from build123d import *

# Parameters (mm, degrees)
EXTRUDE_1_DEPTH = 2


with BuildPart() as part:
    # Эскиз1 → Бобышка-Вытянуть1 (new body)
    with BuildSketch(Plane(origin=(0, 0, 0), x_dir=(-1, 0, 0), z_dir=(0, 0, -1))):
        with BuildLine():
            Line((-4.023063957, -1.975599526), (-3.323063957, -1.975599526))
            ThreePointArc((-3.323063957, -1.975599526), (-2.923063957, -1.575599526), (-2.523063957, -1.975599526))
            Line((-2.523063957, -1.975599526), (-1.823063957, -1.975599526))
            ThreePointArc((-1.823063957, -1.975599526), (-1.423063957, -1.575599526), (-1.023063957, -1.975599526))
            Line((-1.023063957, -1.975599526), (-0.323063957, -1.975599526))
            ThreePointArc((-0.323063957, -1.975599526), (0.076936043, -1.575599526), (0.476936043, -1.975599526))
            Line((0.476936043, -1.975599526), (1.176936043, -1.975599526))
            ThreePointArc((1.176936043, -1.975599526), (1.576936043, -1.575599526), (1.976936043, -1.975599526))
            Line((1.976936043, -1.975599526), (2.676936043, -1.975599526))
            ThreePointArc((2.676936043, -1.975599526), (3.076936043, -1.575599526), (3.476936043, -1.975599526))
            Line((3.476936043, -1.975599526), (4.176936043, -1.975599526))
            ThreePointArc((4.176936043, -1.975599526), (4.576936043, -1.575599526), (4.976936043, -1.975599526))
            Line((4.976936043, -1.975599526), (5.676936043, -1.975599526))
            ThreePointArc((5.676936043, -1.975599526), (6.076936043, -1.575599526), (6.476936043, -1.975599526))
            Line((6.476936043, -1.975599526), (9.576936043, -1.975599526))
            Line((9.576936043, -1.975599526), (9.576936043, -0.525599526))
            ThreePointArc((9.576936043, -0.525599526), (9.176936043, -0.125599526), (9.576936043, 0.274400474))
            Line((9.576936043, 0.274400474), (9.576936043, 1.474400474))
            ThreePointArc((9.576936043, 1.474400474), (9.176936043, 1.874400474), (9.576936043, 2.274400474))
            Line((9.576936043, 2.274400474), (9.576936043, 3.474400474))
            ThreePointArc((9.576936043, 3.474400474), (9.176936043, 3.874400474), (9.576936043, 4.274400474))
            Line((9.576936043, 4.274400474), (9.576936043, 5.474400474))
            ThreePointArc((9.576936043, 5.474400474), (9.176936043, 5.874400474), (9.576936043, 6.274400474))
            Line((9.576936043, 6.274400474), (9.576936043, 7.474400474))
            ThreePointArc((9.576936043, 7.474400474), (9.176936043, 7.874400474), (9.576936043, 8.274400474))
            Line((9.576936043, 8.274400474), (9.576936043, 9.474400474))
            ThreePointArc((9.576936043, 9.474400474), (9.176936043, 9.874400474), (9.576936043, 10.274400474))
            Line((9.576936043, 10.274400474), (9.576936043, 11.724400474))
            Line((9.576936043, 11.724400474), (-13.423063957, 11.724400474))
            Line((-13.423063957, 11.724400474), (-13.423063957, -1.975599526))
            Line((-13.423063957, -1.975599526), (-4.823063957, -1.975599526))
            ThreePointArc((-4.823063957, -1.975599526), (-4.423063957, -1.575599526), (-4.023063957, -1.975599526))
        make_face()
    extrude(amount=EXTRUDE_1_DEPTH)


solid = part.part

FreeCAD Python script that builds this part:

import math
import FreeCAD as App
import Part
import Sketcher
from FreeCAD import Vector
Q = App.Units.Quantity

doc = App.newDocument("Part")
body = doc.addObject("PartDesign::Body", "Body")

sketch1 = doc.addObject("Sketcher::SketchObject", "Sketch")
body.addObject(sketch1)
sketch1.AttachmentSupport = (doc.XY_Plane, [""])
sketch1.MapMode = "FlatFace"
sketch1.addGeometry(Part.LineSegment(Vector(4.02, -1.98, 0), Vector(3.32, -1.98, 0)), False)
sketch1.addGeometry(Part.ArcOfCircle(Part.Circle(Vector(2.92, -1.98, 0), Vector(0, 0, 1), 0.4), math.radians(0), math.radians(180)), False)
sketch1.addGeometry(Part.LineSegment(Vector(2.52, -1.98, 0), Vector(1.82, -1.98, 0)), False)
sketch1.addGeometry(Part.ArcOfCircle(Part.Circle(Vector(1.42, -1.98, 0), Vector(0, 0, 1), 0.4), math.radians(0), math.radians(180)), False)
sketch1.addGeometry(Part.LineSegment(Vector(1.02, -1.98, 0), Vector(0.32, -1.98, 0)), False)
sketch1.addGeometry(Part.ArcOfCircle(Part.Circle(Vector(-0.08, -1.98, 0), Vector(0, 0, 1), 0.4), math.radians(0), math.radians(180)), False)
sketch1.addGeometry(Part.LineSegment(Vector(-0.48, -1.98, 0), Vector(-1.18, -1.98, 0)), False)
sketch1.addGeometry(Part.ArcOfCircle(Part.Circle(Vector(-1.58, -1.98, 0), Vector(0, 0, 1), 0.4), math.radians(0), math.radians(180)), False)
sketch1.addGeometry(Part.LineSegment(Vector(-1.98, -1.98, 0), Vector(-2.68, -1.98, 0)), False)
sketch1.addGeometry(Part.ArcOfCircle(Part.Circle(Vector(-3.08, -1.98, 0), Vector(0, 0, 1), 0.4), math.radians(0), math.radians(180)), False)
sketch1.addGeometry(Part.LineSegment(Vector(-3.48, -1.98, 0), Vector(-4.18, -1.98, 0)), False)
sketch1.addGeometry(Part.ArcOfCircle(Part.Circle(Vector(-4.58, -1.98, 0), Vector(0, 0, 1), 0.4), math.radians(0), math.radians(180)), False)
sketch1.addGeometry(Part.LineSegment(Vector(-4.98, -1.98, 0), Vector(-5.68, -1.98, 0)), False)
sketch1.addGeometry(Part.ArcOfCircle(Part.Circle(Vector(-6.08, -1.98, 0), Vector(0, 0, 1), 0.4), math.radians(0), math.radians(180)), False)
sketch1.addGeometry(Part.LineSegment(Vector(-6.48, -1.98, 0), Vector(-9.58, -1.98, 0)), False)
sketch1.addGeometry(Part.LineSegment(Vector(-9.58, -1.98, 0), Vector(-9.58, -0.53, 0)), False)
sketch1.addGeometry(Part.ArcOfCircle(Part.Circle(Vector(-9.58, -0.13, 0), Vector(0, 0, 1), 0.4), math.radians(-90), math.radians(90)), False)
sketch1.addGeometry(Part.LineSegment(Vector(-9.58, 0.27, 0), Vector(-9.58, 1.47, 0)), False)
sketch1.addGeometry(Part.ArcOfCircle(Part.Circle(Vector(-9.58, 1.87, 0), Vector(0, 0, 1), 0.4), math.radians(-90), math.radians(90)), False)
sketch1.addGeometry(Part.LineSegment(Vector(-9.58, 2.27, 0), Vector(-9.58, 3.47, 0)), False)
sketch1.addGeometry(Part.ArcOfCircle(Part.Circle(Vector(-9.58, 3.87, 0), Vector(0, 0, 1), 0.4), math.radians(-90), math.radians(90)), False)
sketch1.addGeometry(Part.LineSegment(Vector(-9.58, 4.27, 0), Vector(-9.58, 5.47, 0)), False)
sketch1.addGeometry(Part.ArcOfCircle(Part.Circle(Vector(-9.58, 5.87, 0), Vector(0, 0, 1), 0.4), math.radians(-90), math.radians(90)), False)
sketch1.addGeometry(Part.LineSegment(Vector(-9.58, 6.27, 0), Vector(-9.58, 7.47, 0)), False)
sketch1.addGeometry(Part.ArcOfCircle(Part.Circle(Vector(-9.58, 7.87, 0), Vector(0, 0, 1), 0.4), math.radians(-90), math.radians(90)), False)
sketch1.addGeometry(Part.LineSegment(Vector(-9.58, 8.27, 0), Vector(-9.58, 9.47, 0)), False)
sketch1.addGeometry(Part.ArcOfCircle(Part.Circle(Vector(-9.58, 9.87, 0), Vector(0, 0, 1), 0.4), math.radians(-90), math.radians(90)), False)
sketch1.addGeometry(Part.LineSegment(Vector(-9.58, 10.27, 0), Vector(-9.58, 11.72, 0)), False)
sketch1.addGeometry(Part.LineSegment(Vector(-9.58, 11.72, 0), Vector(13.42, 11.72, 0)), False)
sketch1.addGeometry(Part.LineSegment(Vector(13.42, 11.72, 0), Vector(13.42, -1.98, 0)), False)
sketch1.addGeometry(Part.LineSegment(Vector(13.42, -1.98, 0), Vector(4.82, -1.98, 0)), False)
sketch1.addGeometry(Part.ArcOfCircle(Part.Circle(Vector(4.42, -1.98, 0), Vector(0, 0, 1), 0.4), math.radians(0), math.radians(180)), False)
sketch1.addConstraint(Sketcher.Constraint("Coincident", 0, 2, 1, 1))
sketch1.addConstraint(Sketcher.Constraint("Coincident", 1, 2, 2, 1))
sketch1.addConstraint(Sketcher.Constraint("Coincident", 2, 2, 3, 1))
sketch1.addConstraint(Sketcher.Constraint("Coincident", 3, 2, 4, 1))
sketch1.addConstraint(Sketcher.Constraint("Coincident", 4, 2, 5, 1))
sketch1.addConstraint(Sketcher.Constraint("Coincident", 5, 2, 6, 1))
sketch1.addConstraint(Sketcher.Constraint("Coincident", 6, 2, 7, 1))
sketch1.addConstraint(Sketcher.Constraint("Coincident", 7, 2, 8, 1))
sketch1.addConstraint(Sketcher.Constraint("Coincident", 8, 2, 9, 1))
sketch1.addConstraint(Sketcher.Constraint("Coincident", 9, 2, 10, 1))
sketch1.addConstraint(Sketcher.Constraint("Coincident", 10, 2, 11, 1))
sketch1.addConstraint(Sketcher.Constraint("Coincident", 11, 2, 12, 1))
sketch1.addConstraint(Sketcher.Constraint("Coincident", 12, 2, 13, 1))
sketch1.addConstraint(Sketcher.Constraint("Coincident", 13, 2, 14, 1))
sketch1.addConstraint(Sketcher.Constraint("Coincident", 14, 2, 15, 1))
sketch1.addConstraint(Sketcher.Constraint("Coincident", 15, 2, 16, 1))
sketch1.addConstraint(Sketcher.Constraint("Coincident", 16, 2, 17, 1))
sketch1.addConstraint(Sketcher.Constraint("Coincident", 17, 2, 18, 1))
sketch1.addConstraint(Sketcher.Constraint("Coincident", 18, 2, 19, 1))
sketch1.addConstraint(Sketcher.Constraint("Coincident", 19, 2, 20, 1))
sketch1.addConstraint(Sketcher.Constraint("Coincident", 20, 2, 21, 1))
sketch1.addConstraint(Sketcher.Constraint("Coincident", 21, 2, 22, 1))
sketch1.addConstraint(Sketcher.Constraint("Coincident", 22, 2, 23, 1))
sketch1.addConstraint(Sketcher.Constraint("Coincident", 23, 2, 24, 1))
sketch1.addConstraint(Sketcher.Constraint("Coincident", 24, 2, 25, 1))
sketch1.addConstraint(Sketcher.Constraint("Coincident", 25, 2, 26, 1))
sketch1.addConstraint(Sketcher.Constraint("Coincident", 26, 2, 27, 1))
sketch1.addConstraint(Sketcher.Constraint("Coincident", 27, 2, 28, 1))
sketch1.addConstraint(Sketcher.Constraint("Coincident", 28, 2, 29, 1))
sketch1.addConstraint(Sketcher.Constraint("Coincident", 29, 2, 30, 1))
sketch1.addConstraint(Sketcher.Constraint("Coincident", 30, 2, 31, 1))
sketch1.addConstraint(Sketcher.Constraint("Coincident", 31, 2, 0, 1))
sketch1.addConstraint(Sketcher.Constraint("Horizontal", 0))
sketch1.addConstraint(Sketcher.Constraint("Horizontal", 2))
sketch1.addConstraint(Sketcher.Constraint("Horizontal", 4))
sketch1.addConstraint(Sketcher.Constraint("Horizontal", 6))
sketch1.addConstraint(Sketcher.Constraint("Horizontal", 8))
sketch1.addConstraint(Sketcher.Constraint("Horizontal", 10))
sketch1.addConstraint(Sketcher.Constraint("Horizontal", 12))
sketch1.addConstraint(Sketcher.Constraint("Horizontal", 14))
sketch1.addConstraint(Sketcher.Constraint("Vertical", 15))
sketch1.addConstraint(Sketcher.Constraint("Vertical", 17))
sketch1.addConstraint(Sketcher.Constraint("Vertical", 19))
sketch1.addConstraint(Sketcher.Constraint("Vertical", 21))
sketch1.addConstraint(Sketcher.Constraint("Vertical", 23))
sketch1.addConstraint(Sketcher.Constraint("Vertical", 25))
sketch1.addConstraint(Sketcher.Constraint("Vertical", 27))
sketch1.addConstraint(Sketcher.Constraint("Horizontal", 28))
sketch1.addConstraint(Sketcher.Constraint("Vertical", 29))
sketch1.addConstraint(Sketcher.Constraint("Horizontal", 30))
sketch1.addConstraint(Sketcher.Constraint("Equal", 1, 3))
sketch1.addConstraint(Sketcher.Constraint("Equal", 3, 5))
sketch1.addConstraint(Sketcher.Constraint("Equal", 5, 7))
sketch1.addConstraint(Sketcher.Constraint("Equal", 7, 9))
sketch1.addConstraint(Sketcher.Constraint("Equal", 9, 11))
sketch1.addConstraint(Sketcher.Constraint("Equal", 11, 13))
sketch1.addConstraint(Sketcher.Constraint("Equal", 13, 16))
sketch1.addConstraint(Sketcher.Constraint("Equal", 16, 18))
sketch1.addConstraint(Sketcher.Constraint("Equal", 18, 20))
sketch1.addConstraint(Sketcher.Constraint("Equal", 20, 22))
sketch1.addConstraint(Sketcher.Constraint("Equal", 22, 24))
sketch1.addConstraint(Sketcher.Constraint("Equal", 24, 26))
sketch1.addConstraint(Sketcher.Constraint("Equal", 26, 31))
sketch1.addConstraint(Sketcher.Constraint("Horizontal", 1, 3, 3, 3))
sketch1.addConstraint(Sketcher.Constraint("Horizontal", 3, 3, 5, 3))
sketch1.addConstraint(Sketcher.Constraint("Horizontal", 5, 3, 7, 3))
sketch1.addConstraint(Sketcher.Constraint("Horizontal", 7, 3, 9, 3))
sketch1.addConstraint(Sketcher.Constraint("Horizontal", 9, 3, 11, 3))
sketch1.addConstraint(Sketcher.Constraint("Horizontal", 11, 3, 13, 3))
sketch1.addConstraint(Sketcher.Constraint("Horizontal", 13, 3, 31, 3))
sketch1.addConstraint(Sketcher.Constraint("Horizontal", 31, 3, 0, 2))
sketch1.addConstraint(Sketcher.Constraint("Horizontal", 0, 2, 1, 2))
sketch1.addConstraint(Sketcher.Constraint("Horizontal", 2, 2, 3, 2))
sketch1.addConstraint(Sketcher.Constraint("Horizontal", 4, 2, 5, 2))
sketch1.addConstraint(Sketcher.Constraint("Horizontal", 6, 2, 7, 2))
sketch1.addConstraint(Sketcher.Constraint("Horizontal", 8, 2, 9, 2))
sketch1.addConstraint(Sketcher.Constraint("Horizontal", 10, 2, 11, 2))
sketch1.addConstraint(Sketcher.Constraint("Horizontal", 12, 2, 13, 2))
sketch1.addConstraint(Sketcher.Constraint("Horizontal", 14, 2, 29, 2))
sketch1.addConstraint(Sketcher.Constraint("Vertical", 16, 3, 18, 3))
sketch1.addConstraint(Sketcher.Constraint("Vertical", 18, 3, 20, 3))
sketch1.addConstraint(Sketcher.Constraint("Vertical", 20, 3, 22, 3))
sketch1.addConstraint(Sketcher.Constraint("Vertical", 22, 3, 24, 3))
sketch1.addConstraint(Sketcher.Constraint("Vertical", 24, 3, 26, 3))
sketch1.addConstraint(Sketcher.Constraint("Vertical", 26, 3, 14, 2))
sketch1.addConstraint(Sketcher.Constraint("Vertical", 15, 2, 16, 2))
sketch1.addConstraint(Sketcher.Constraint("Vertical", 17, 2, 18, 2))
sketch1.addConstraint(Sketcher.Constraint("Vertical", 19, 2, 20, 2))
sketch1.addConstraint(Sketcher.Constraint("Vertical", 21, 2, 22, 2))
sketch1.addConstraint(Sketcher.Constraint("Vertical", 23, 2, 24, 2))
sketch1.addConstraint(Sketcher.Constraint("Vertical", 25, 2, 26, 2))
sketch1.addConstraint(Sketcher.Constraint("Equal", 0, 2))
sketch1.addConstraint(Sketcher.Constraint("Equal", 2, 4))
sketch1.addConstraint(Sketcher.Constraint("Equal", 4, 6))
sketch1.addConstraint(Sketcher.Constraint("Equal", 6, 8))
sketch1.addConstraint(Sketcher.Constraint("Equal", 8, 10))
sketch1.addConstraint(Sketcher.Constraint("Equal", 10, 12))
sketch1.addConstraint(Sketcher.Constraint("Equal", 17, 19))
sketch1.addConstraint(Sketcher.Constraint("Equal", 19, 21))
sketch1.addConstraint(Sketcher.Constraint("Equal", 21, 23))
sketch1.addConstraint(Sketcher.Constraint("Equal", 23, 25))
sketch1.addConstraint(Sketcher.Constraint("Equal", 15, 27))
sketch1.addConstraint(Sketcher.Constraint("Radius", 1, Q("0.4 mm")))
sketch1.addConstraint(Sketcher.Constraint("DistanceX", 28, 1, 28, 2, Q("23 mm")))
sketch1.addConstraint(Sketcher.Constraint("DistanceX", 0, 2, 0, 1, Q("0.7 mm")))
sketch1.addConstraint(Sketcher.Constraint("DistanceX", 14, 2, 14, 1, Q("3.1 mm")))
sketch1.addConstraint(Sketcher.Constraint("DistanceY", 17, 1, 17, 2, Q("1.2 mm")))
sketch1.addConstraint(Sketcher.Constraint("DistanceY", 29, 2, 29, 1, Q("13.7 mm")))
sketch1.addConstraint(Sketcher.Constraint("DistanceY", 1, 3, -1, 1, Q("1.9756 mm")))
sketch1.addConstraint(Sketcher.Constraint("DistanceX", -1, 1, 1, 3, Q("2.923064 mm")))
pad1 = doc.addObject("PartDesign::Pad", "Pad")
body.addObject(pad1)
pad1.Profile = sketch1
pad1.Length = 2
pad1.Reversed = True

doc.recompute()
